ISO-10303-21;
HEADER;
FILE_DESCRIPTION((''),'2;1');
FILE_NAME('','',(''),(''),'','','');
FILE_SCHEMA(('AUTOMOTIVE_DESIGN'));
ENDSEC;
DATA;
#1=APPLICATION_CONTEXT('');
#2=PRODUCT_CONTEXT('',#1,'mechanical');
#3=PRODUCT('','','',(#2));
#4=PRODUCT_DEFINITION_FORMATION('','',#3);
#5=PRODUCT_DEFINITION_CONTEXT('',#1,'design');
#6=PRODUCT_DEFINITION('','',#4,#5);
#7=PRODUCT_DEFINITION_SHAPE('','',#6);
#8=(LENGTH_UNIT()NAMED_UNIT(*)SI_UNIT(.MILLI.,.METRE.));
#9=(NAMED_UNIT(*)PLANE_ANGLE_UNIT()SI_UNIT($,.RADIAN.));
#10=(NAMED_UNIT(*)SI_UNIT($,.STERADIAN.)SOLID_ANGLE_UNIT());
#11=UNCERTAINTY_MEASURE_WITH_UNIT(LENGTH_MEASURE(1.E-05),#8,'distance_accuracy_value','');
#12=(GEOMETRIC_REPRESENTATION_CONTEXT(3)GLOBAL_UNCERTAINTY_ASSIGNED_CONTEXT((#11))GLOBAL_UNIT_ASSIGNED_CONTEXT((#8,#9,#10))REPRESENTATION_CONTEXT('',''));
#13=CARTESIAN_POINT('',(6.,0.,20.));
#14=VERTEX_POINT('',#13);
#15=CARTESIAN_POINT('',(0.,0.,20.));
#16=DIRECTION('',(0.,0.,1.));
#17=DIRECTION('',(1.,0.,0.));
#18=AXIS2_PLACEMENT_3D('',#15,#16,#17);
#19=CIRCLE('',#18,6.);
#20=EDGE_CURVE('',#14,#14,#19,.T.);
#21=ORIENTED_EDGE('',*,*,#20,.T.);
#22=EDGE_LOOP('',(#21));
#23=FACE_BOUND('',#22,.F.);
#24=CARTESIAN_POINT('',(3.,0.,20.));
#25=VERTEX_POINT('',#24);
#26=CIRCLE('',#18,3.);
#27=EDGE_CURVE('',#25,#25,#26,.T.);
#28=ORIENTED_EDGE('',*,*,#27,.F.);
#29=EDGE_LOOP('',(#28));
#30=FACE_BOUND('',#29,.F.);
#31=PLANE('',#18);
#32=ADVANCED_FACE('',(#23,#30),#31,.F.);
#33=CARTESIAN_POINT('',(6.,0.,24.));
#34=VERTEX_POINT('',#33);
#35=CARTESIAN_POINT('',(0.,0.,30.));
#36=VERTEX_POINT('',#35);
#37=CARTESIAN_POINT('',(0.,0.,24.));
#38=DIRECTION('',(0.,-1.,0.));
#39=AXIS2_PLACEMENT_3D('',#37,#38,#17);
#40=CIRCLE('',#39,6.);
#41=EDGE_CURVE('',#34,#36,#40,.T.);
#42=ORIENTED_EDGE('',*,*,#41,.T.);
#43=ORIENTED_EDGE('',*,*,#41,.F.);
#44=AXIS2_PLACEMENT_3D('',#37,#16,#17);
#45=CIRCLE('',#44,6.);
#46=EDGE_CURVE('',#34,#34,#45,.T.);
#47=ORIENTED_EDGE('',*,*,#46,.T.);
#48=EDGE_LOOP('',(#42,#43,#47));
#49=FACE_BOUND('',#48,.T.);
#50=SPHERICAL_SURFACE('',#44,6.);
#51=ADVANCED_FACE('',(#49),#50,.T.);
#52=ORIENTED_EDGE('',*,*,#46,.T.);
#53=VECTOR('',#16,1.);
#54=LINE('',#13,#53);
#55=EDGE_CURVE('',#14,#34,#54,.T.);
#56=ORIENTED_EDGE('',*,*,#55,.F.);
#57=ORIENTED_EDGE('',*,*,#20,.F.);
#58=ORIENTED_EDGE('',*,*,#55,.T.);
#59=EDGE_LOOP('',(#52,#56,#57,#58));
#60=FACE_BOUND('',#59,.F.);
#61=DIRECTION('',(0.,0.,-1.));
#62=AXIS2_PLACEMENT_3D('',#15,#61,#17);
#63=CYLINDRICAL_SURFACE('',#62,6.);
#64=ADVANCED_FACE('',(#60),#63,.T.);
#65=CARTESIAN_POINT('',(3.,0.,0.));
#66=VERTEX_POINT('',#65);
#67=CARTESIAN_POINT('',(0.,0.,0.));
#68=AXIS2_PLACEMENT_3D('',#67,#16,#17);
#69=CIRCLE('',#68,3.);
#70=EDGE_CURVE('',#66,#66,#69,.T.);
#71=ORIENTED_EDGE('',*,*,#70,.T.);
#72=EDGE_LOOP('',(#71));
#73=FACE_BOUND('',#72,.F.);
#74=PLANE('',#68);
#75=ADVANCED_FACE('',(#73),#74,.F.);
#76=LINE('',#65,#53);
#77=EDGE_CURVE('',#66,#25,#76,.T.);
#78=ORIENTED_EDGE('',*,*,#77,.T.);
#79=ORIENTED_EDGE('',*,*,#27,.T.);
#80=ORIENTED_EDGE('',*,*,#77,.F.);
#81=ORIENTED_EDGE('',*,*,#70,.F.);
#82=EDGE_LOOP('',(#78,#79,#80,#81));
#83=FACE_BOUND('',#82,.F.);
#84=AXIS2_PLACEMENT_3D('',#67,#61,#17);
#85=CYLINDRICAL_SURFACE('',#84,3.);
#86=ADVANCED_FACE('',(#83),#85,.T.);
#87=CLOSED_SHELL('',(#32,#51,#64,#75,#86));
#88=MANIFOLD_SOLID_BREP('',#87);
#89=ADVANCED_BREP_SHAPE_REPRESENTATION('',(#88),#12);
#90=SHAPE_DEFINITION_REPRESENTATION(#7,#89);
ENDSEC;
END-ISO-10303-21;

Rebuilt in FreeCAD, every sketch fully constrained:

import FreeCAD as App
import Part
import Sketcher
from FreeCAD import Vector
Q = App.Units.Quantity


def edges_at(feature, points):
    """Names of the edges that pass closest to the given points."""
    edges = feature.Shape.Edges
    near = lambda p: min(range(len(edges)), key=lambda i: edges[i].distToShape(Part.Vertex(*p))[0])
    return sorted({f"Edge{near(p) + 1}" for p in points})

doc = App.newDocument("Part")
body = doc.addObject("PartDesign::Body", "Body")

# Sketch on XY plane
sketch1 = body.newObject("Sketcher::SketchObject", "Sketch")
sketch1.AttachmentSupport = (doc.getObject("XY_Plane"), [""])
sketch1.MapMode = "FlatFace"
sketch1.addGeometry(Part.Circle(Vector(0, 0, 0), Vector(0, 0, 1), 3), False)
sketch1.addConstraint(Sketcher.Constraint("Coincident", 0, 3, -1, 1))
sketch1.addConstraint(Sketcher.Constraint("Diameter", 0, Q("6 mm")))
pad1 = body.newObject("PartDesign::Pad", "Pad")
pad1.Profile = sketch1
pad1.Length = 20

# Sketch on XY plane
sketch2 = body.newObject("Sketcher::SketchObject", "Sketch001")
sketch2.AttachmentSupport = (doc.getObject("XY_Plane"), [""])
sketch2.MapMode = "FlatFace"
sketch2.AttachmentOffset = App.Placement(Vector(0, 0, 20), App.Rotation())
sketch2.addGeometry(Part.Circle(Vector(0, 0, 0), Vector(0, 0, 1), 6), False)
sketch2.addConstraint(Sketcher.Constraint("Coincident", 0, 3, -1, 1))
sketch2.addConstraint(Sketcher.Constraint("Diameter", 0, Q("12 mm")))
pad2 = body.newObject("PartDesign::Pad", "Pad001")
pad2.Profile = sketch2
pad2.Length = 10
doc.recompute()

fillet = body.newObject("PartDesign::Fillet", "Fillet")
fillet.Base = (pad2, edges_at(pad2, [(-6, 0, 30)]))
fillet.Radius = 6

doc.recompute()
